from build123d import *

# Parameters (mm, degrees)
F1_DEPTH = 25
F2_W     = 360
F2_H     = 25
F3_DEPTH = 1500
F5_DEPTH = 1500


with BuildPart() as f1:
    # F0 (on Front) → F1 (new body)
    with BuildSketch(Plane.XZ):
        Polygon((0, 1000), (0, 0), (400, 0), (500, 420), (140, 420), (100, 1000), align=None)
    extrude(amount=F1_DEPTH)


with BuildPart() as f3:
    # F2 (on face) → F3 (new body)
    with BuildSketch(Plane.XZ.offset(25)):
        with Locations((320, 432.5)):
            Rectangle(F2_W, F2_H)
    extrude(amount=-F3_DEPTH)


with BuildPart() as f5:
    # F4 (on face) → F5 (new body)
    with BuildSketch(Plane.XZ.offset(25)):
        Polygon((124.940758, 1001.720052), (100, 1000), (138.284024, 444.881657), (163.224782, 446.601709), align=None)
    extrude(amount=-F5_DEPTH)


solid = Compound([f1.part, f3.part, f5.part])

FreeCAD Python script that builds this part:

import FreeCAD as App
import Part
import Sketcher
from FreeCAD import Vector

doc = App.newDocument("Part")
params = doc.addObject("Spreadsheet::Sheet", "Params")
for row, (alias, value) in enumerate([
    ("sketch1_width", "400 mm"),
    ("sketch1_width2", "360 mm"),
    ("sketch1_width3", "100 mm"),
    ("sketch1_height", "1000 mm"),
    ("pad1_length", "25 mm"),
    ("sketch2_width", "360 mm"),
    ("sketch2_height", "25 mm"),
    ("pad2_length", "1500 mm"),
    ("sketch3_length", "25 mm"),
    ("pad3_length", "1500 mm"),
], start=1):
    params.set(f"A{row}", alias)
    params.set(f"B{row}", "=" + value)
    params.setAlias(f"B{row}", alias)

body = doc.addObject("PartDesign::Body", "Body")

# Sketch on XZ plane
sketch1 = body.newObject("Sketcher::SketchObject", "Sketch")
sketch1.AttachmentSupport = (doc.getObject("XZ_Plane"), [""])
sketch1.MapMode = "FlatFace"
sketch1.addGeometry([
    Part.LineSegment(Vector(0, 1000, 0), Vector(0, 0, 0)),  # 0
    Part.LineSegment(Vector(0, 0, 0), Vector(400, 0, 0)),  # 1
    Part.LineSegment(Vector(400, 0, 0), Vector(500, 420, 0)),  # 2
    Part.LineSegment(Vector(500, 420, 0), Vector(140, 420, 0)),  # 3
    Part.LineSegment(Vector(140, 420, 0), Vector(100, 1000, 0)),  # 4
    Part.LineSegment(Vector(100, 1000, 0), Vector(0, 1000, 0)),  # 5
], False)
sketch1.addConstraint([
    Sketcher.Constraint("Coincident", 0, 2, 1, 1),
    Sketcher.Constraint("Coincident", 1, 2, 2, 1),
    Sketcher.Constraint("Coincident", 2, 2, 3, 1),
    Sketcher.Constraint("Coincident", 3, 2, 4, 1),
    Sketcher.Constraint("Coincident", 4, 2, 5, 1),
    Sketcher.Constraint("Coincident", 5, 2, 0, 1),
    Sketcher.Constraint("Vertical", 0),
    Sketcher.Constraint("Horizontal", 1),
    Sketcher.Constraint("Horizontal", 3),
    Sketcher.Constraint("Horizontal", 5),
    Sketcher.Constraint("Coincident", 0, 2, -1, 1),
    Sketcher.Constraint("DistanceX", 1, 1, 1, 2, 400.0),
    Sketcher.Constraint("DistanceX", 3, 2, 3, 1, 360.0),
    Sketcher.Constraint("DistanceX", 5, 2, 5, 1, 100.0),
    Sketcher.Constraint("DistanceY", 0, 2, 0, 1, 1000.0),
    Sketcher.Constraint("DistanceX", -1, 1, 2, 2, 500.0),
    Sketcher.Constraint("DistanceY", -1, 1, 2, 2, 420.0),
])
sketch1.setExpression("Constraints[11]", "Params.sketch1_width")
sketch1.setExpression("Constraints[12]", "Params.sketch1_width2")
sketch1.setExpression("Constraints[13]", "Params.sketch1_width3")
sketch1.setExpression("Constraints[14]", "Params.sketch1_height")
pad1 = body.newObject("PartDesign::Pad", "Pad")
pad1.Profile = sketch1
pad1.setExpression("Length", "Params.pad1_length")
body2 = doc.addObject("PartDesign::Body", "Body001")

# Sketch on XZ plane
sketch2 = body2.newObject("Sketcher::SketchObject", "Sketch001")
sketch2.AttachmentSupport = (doc.getObject("XZ_Plane001"), [""])
sketch2.MapMode = "FlatFace"
sketch2.AttachmentOffset = App.Placement(Vector(0, 0, 25), App.Rotation())
sketch2.addGeometry([
    Part.LineSegment(Vector(140, 445, 0), Vector(140, 420, 0)),
    Part.LineSegment(Vector(140, 420, 0), Vector(500, 420, 0)),
    Part.LineSegment(Vector(500, 420, 0), Vector(500, 445, 0)),
    Part.LineSegment(Vector(500, 445, 0), Vector(140, 445, 0)),
], False)
sketch2.addConstraint([
    Sketcher.Constraint("Coincident", 0, 2, 1, 1),
    Sketcher.Constraint("Coincident", 1, 2, 2, 1),
    Sketcher.Constraint("Coincident", 2, 2, 3, 1),
    Sketcher.Constraint("Coincident", 3, 2, 0, 1),
    Sketcher.Constraint("Vertical", 0),
    Sketcher.Constraint("Horizontal", 1),
    Sketcher.Constraint("Vertical", 2),
    Sketcher.Constraint("Horizontal", 3),
    Sketcher.Constraint("DistanceX", 1, 1, 1, 2, 360.0),
    Sketcher.Constraint("DistanceY", 0, 2, 0, 1, 25.0),
    Sketcher.Constraint("DistanceX", -1, 1, 0, 2, 140.0),
    Sketcher.Constraint("DistanceY", -1, 1, 0, 2, 420.0),
])
sketch2.setExpression("Constraints[8]", "Params.sketch2_width")
sketch2.setExpression("Constraints[9]", "Params.sketch2_height")
pad2 = body2.newObject("PartDesign::Pad", "Pad001")
pad2.Profile = sketch2
pad2.setExpression("Length", "Params.pad2_length")
pad2.Reversed = True
body3 = doc.addObject("PartDesign::Body", "Body002")

# Sketch on XZ plane
sketch3 = body3.newObject("Sketcher::SketchObject", "Sketch002")
sketch3.AttachmentSupport = (doc.getObject("XZ_Plane002"), [""])
sketch3.MapMode = "FlatFace"
sketch3.AttachmentOffset = App.Placement(Vector(0, 0, 25), App.Rotation())
sketch3.addGeometry([
    Part.LineSegment(Vector(125, 1002, 0), Vector(100, 1000, 0)),
    Part.LineSegment(Vector(100, 1000, 0), Vector(138, 445, 0)),
    Part.LineSegment(Vector(138, 445, 0), Vector(163, 447, 0)),
    Part.LineSegment(Vector(163, 447, 0), Vector(125, 1002, 0)),
], False)
sketch3.addConstraint([
    Sketcher.Constraint("Coincident", 0, 2, 1, 1),
    Sketcher.Constraint("Coincident", 1, 2, 2, 1),
    Sketcher.Constraint("Coincident", 2, 2, 3, 1),
    Sketcher.Constraint("Coincident", 3, 2, 0, 1),
    Sketcher.Constraint("Perpendicular", 0, 1),
    Sketcher.Constraint("Perpendicular", 1, 2),
    Sketcher.Constraint("Perpendicular", 2, 3),
    Sketcher.Constraint("Distance", 0, 25.0),
    Sketcher.Constraint("DistanceX", -1, 1, 0, 2, 100.0),
    Sketcher.Constraint("DistanceY", -1, 1, 0, 2, 1000.0),
    Sketcher.Constraint("DistanceX", -1, 1, 2, 2, 163.224782),
    Sketcher.Constraint("DistanceY", -1, 1, 2, 2, 446.601709),
])
sketch3.setExpression("Constraints[7]", "Params.sketch3_length")
pad3 = body3.newObject("PartDesign::Pad", "Pad002")
pad3.Profile = sketch3
pad3.setExpression("Length", "Params.pad3_length")
pad3.Reversed = True

doc.recompute()
